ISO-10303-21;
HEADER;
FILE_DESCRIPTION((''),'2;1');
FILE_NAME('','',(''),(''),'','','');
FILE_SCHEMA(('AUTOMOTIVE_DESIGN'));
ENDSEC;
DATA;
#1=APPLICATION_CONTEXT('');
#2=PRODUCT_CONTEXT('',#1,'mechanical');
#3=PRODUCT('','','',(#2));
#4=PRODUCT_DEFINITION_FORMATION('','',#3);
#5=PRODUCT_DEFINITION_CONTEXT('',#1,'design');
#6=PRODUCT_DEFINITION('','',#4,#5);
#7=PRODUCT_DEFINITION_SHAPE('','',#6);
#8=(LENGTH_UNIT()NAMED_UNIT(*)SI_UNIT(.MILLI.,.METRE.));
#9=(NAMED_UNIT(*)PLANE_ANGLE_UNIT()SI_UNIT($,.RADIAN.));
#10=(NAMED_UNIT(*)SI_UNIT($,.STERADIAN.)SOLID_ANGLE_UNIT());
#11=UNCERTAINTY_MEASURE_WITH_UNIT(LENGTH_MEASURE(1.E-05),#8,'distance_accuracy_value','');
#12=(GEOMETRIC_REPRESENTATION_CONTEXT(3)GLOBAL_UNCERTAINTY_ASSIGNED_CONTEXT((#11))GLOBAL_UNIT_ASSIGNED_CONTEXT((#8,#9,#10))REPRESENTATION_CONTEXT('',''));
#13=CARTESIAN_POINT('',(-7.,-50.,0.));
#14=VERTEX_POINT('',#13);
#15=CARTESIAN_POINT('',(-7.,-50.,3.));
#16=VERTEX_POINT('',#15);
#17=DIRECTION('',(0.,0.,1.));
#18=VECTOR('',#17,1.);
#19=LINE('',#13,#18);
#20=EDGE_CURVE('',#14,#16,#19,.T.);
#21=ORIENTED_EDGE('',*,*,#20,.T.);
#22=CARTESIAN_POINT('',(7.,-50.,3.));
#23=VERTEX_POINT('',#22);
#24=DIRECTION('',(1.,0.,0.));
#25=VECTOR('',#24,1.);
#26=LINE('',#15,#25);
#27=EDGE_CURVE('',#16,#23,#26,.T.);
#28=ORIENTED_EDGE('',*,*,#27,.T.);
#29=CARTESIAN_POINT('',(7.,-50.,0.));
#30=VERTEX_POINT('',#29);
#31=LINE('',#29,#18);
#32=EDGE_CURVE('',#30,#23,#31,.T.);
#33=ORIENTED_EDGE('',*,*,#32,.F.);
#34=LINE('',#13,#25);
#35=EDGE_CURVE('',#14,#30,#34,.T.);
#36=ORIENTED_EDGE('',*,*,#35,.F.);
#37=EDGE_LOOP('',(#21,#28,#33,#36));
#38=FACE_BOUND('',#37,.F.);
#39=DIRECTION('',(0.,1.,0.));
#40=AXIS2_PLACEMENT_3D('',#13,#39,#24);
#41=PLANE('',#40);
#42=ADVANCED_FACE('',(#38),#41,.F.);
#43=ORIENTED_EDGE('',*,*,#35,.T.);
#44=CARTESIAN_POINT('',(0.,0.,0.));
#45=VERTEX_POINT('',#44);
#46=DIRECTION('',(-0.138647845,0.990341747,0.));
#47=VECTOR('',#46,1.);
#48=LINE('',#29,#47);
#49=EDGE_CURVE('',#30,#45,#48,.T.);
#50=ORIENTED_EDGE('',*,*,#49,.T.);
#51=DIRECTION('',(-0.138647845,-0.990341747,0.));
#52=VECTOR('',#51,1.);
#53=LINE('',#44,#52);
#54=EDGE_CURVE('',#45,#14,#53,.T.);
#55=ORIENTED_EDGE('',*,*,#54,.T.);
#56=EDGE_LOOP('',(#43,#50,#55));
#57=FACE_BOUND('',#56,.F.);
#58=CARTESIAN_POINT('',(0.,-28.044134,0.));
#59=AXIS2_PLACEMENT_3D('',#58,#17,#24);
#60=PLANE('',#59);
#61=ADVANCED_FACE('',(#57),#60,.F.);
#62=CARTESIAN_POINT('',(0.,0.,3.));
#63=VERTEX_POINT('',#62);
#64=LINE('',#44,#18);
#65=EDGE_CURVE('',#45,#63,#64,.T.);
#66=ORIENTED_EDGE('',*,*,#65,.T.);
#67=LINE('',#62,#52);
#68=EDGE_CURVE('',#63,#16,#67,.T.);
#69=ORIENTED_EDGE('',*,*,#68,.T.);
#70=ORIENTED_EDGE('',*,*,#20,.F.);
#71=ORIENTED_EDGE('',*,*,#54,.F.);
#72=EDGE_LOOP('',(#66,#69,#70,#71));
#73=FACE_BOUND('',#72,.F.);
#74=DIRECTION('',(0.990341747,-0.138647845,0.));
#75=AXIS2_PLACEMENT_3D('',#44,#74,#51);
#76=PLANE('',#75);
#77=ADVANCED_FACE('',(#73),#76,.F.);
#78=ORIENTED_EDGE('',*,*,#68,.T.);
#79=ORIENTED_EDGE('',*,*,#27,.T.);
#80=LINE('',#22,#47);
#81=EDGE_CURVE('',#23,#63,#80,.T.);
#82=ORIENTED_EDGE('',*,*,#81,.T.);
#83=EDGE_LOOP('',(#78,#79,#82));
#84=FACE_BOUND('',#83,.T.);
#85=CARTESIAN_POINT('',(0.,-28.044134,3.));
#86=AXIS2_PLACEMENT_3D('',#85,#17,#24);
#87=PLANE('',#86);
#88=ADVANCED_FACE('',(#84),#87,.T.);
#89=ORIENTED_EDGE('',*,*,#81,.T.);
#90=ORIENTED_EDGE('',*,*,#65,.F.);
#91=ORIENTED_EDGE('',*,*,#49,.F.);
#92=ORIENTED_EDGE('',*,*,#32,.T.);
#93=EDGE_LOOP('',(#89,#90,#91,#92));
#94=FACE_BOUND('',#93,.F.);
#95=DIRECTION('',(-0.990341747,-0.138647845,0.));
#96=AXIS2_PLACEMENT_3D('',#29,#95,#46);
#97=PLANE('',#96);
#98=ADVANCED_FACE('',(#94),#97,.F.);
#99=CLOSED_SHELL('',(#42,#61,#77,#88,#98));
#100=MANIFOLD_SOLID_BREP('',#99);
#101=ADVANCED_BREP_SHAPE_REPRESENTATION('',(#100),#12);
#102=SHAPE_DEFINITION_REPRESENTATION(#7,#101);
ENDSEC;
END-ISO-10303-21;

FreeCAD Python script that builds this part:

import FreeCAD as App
import Part
import Sketcher


def add_polygon(sketch, points):
    """Adds a closed chain of lines whose ends are joined by coincident constraints."""
    first, n = sketch.GeometryCount, len(points)
    for a, b in zip(points, points[1:] + points[:1]):
        sketch.addGeometry(Part.LineSegment(App.Vector(*a, 0), App.Vector(*b, 0)), False)
    for i in range(n):
        sketch.addConstraint(Sketcher.Constraint("Coincident", first + i, 2, first + (i + 1) % n, 1))

doc = App.newDocument("Part")
body = doc.addObject("PartDesign::Body", "Body")

# Sketch on XY plane
sketch1 = doc.addObject("Sketcher::SketchObject", "Sketch")
body.addObject(sketch1)
sketch1.AttachmentSupport = (doc.XY_Plane, [""])
sketch1.MapMode = "FlatFace"
add_polygon(sketch1, [(-7, -50), (7, -50), (0, 0)])  # lines 0-2
sketch1.addConstraint(Sketcher.Constraint("Horizontal", 0))
sketch1.addConstraint(Sketcher.Constraint("Coincident", 1, 2, -1, 1))
sketch1.addConstraint(Sketcher.Constraint("Equal", 1, 2))
sketch1.addConstraint(Sketcher.Constraint("DistanceX", 0, 1, 0, 2, 14.0))
sketch1.addConstraint(Sketcher.Constraint("DistanceY", 0, 2, -1, 1, 50.0))
pad1 = doc.addObject("PartDesign::Pad", "Pad")
body.addObject(pad1)
pad1.Profile = sketch1
pad1.Length = 3

doc.recompute()
